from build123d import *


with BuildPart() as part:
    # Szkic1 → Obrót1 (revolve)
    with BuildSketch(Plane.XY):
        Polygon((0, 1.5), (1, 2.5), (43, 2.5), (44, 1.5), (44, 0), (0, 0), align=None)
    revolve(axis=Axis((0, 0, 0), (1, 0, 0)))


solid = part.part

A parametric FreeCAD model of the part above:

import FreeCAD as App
import Part
import Sketcher
Q = App.Units.Quantity

doc = App.newDocument("Part")
body = doc.addObject("PartDesign::Body", "Body")

# Sketch on XY plane
sketch1 = body.newObject("Sketcher::SketchObject", "Sketch")
sketch1.AttachmentSupport = (doc.getObject("XY_Plane"), [""])
sketch1.MapMode = "FlatFace"
sketch1.addGeometry([
    Part.LineSegment(App.Vector(1, 2.5, 0), App.Vector(0, 1.5, 0)),  # 0
    Part.LineSegment(App.Vector(0, 1.5, 0), App.Vector(0, 0, 0)),  # 1
    Part.LineSegment(App.Vector(0, 0, 0), App.Vector(44, 0, 0)),  # 2
    Part.LineSegment(App.Vector(44, 0, 0), App.Vector(44, 1.5, 0)),  # 3
    Part.LineSegment(App.Vector(44, 1.5, 0), App.Vector(43, 2.5, 0)),  # 4
    Part.LineSegment(App.Vector(43, 2.5, 0), App.Vector(1, 2.5, 0)),  # 5
], False)
sketch1.addConstraint([
    Sketcher.Constraint("Coincident", 0, 2, 1, 1),
    Sketcher.Constraint("Coincident", 1, 2, 2, 1),
    Sketcher.Constraint("Coincident", 2, 2, 3, 1),
    Sketcher.Constraint("Coincident", 3, 2, 4, 1),
    Sketcher.Constraint("Coincident", 4, 2, 5, 1),
    Sketcher.Constraint("Coincident", 5, 2, 0, 1),
    Sketcher.Constraint("Vertical", 1),
    Sketcher.Constraint("Horizontal", 2),
    Sketcher.Constraint("Vertical", 3),
    Sketcher.Constraint("Horizontal", 5),
    Sketcher.Constraint("Coincident", 1, 2, -1, 1),
    Sketcher.Constraint("Perpendicular", 0, 4),
    Sketcher.Constraint("Horizontal", 0, 2, 3, 2),
    Sketcher.Constraint("Equal", 0, 4),
    Sketcher.Constraint("DistanceX", 2, 1, 2, 2, Q("44 mm")),
    Sketcher.Constraint("DistanceX", 5, 2, 5, 1, Q("42 mm")),
    Sketcher.Constraint("DistanceY", 1, 2, 1, 1, Q("1.5 mm")),
])
revolution = body.newObject("PartDesign::Revolution", "Revolution")
revolution.Profile = sketch1
revolution.ReferenceAxis = (sketch1, ["H_Axis"])
revolution.Angle = 360

doc.recompute()
